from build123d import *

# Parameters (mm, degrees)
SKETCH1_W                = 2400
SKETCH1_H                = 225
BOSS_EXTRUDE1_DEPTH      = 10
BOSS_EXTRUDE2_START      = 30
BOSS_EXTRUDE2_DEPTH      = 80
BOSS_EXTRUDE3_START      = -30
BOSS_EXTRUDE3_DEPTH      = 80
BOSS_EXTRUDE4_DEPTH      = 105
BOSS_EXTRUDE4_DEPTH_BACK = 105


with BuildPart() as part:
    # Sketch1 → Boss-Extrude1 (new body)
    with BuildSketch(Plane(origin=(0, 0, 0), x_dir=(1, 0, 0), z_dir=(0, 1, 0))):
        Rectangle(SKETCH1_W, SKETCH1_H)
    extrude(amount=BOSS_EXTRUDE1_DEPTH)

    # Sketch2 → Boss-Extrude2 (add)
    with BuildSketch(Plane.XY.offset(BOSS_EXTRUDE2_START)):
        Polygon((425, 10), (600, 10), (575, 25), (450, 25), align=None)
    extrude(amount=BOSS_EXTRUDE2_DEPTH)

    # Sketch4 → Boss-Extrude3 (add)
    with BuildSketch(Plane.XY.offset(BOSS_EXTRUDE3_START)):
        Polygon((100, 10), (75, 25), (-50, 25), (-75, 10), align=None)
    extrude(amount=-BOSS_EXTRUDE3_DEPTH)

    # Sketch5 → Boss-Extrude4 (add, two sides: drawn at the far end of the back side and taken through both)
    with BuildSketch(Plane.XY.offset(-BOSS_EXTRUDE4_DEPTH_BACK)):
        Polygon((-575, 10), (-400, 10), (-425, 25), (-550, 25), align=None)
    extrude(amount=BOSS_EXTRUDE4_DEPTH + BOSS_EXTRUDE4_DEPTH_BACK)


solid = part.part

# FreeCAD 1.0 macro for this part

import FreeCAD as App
import Part
import Sketcher

V = App.Vector
Q = App.Units.Quantity


def add_polygon(sketch, points):
    """Adds a closed chain of lines whose ends are joined by coincident constraints."""
    first, n = sketch.GeometryCount, len(points)
    for a, b in zip(points, points[1:] + points[:1]):
        sketch.addGeometry(Part.LineSegment(App.Vector(*a, 0), App.Vector(*b, 0)), False)
    for i in range(n):
        sketch.addConstraint(Sketcher.Constraint("Coincident", first + i, 2, first + (i + 1) % n, 1))

doc = App.newDocument("Part")
body = doc.addObject("PartDesign::Body", "Body")

# Sketch on XZ plane
sketch1 = body.newObject("Sketcher::SketchObject", "Sketch")
sketch1.AttachmentSupport = (doc.getObject("XZ_Plane"), [""])
sketch1.MapMode = "FlatFace"
add_polygon(sketch1, [(-1200, -112), (-1200, 112), (1200, 112), (1200, -112)])  # lines 0-3
sketch1.addConstraint(Sketcher.Constraint("Vertical", 0))
sketch1.addConstraint(Sketcher.Constraint("Horizontal", 1))
sketch1.addConstraint(Sketcher.Constraint("Vertical", 2))
sketch1.addConstraint(Sketcher.Constraint("Horizontal", 3))
sketch1.addConstraint(Sketcher.Constraint("Symmetric", 0, 2, 2, 2, -1, 1))
sketch1.addConstraint(Sketcher.Constraint("DistanceX", 1, 1, 1, 2, Q("2400 mm")))
sketch1.addConstraint(Sketcher.Constraint("DistanceY", 0, 1, 0, 2, Q("225 mm")))
pad1 = body.newObject("PartDesign::Pad", "Pad")
pad1.Profile = sketch1
pad1.Length = 10
pad1.Reversed = True

# Sketch on XY plane
sketch2 = body.newObject("Sketcher::SketchObject", "Sketch001")
sketch2.AttachmentSupport = (doc.getObject("XY_Plane"), [""])
sketch2.MapMode = "FlatFace"
sketch2.AttachmentOffset = App.Placement(V(0, 0, 30), App.Rotation())
add_polygon(sketch2, [(425, 10), (600, 10), (575, 25), (450, 25)])  # lines 0-3
sketch2.addConstraint(Sketcher.Constraint("Horizontal", 0))
sketch2.addConstraint(Sketcher.Constraint("Horizontal", 2))
sketch2.addConstraint(Sketcher.Constraint("Equal", 1, 3))
sketch2.addConstraint(Sketcher.Constraint("DistanceX", 0, 1, 0, 2, Q("175 mm")))
sketch2.addConstraint(Sketcher.Constraint("DistanceX", 2, 2, 2, 1, Q("125 mm")))
sketch2.addConstraint(Sketcher.Constraint("DistanceX", -1, 1, 0, 2, Q("600 mm")))
sketch2.addConstraint(Sketcher.Constraint("DistanceY", -1, 1, 0, 2, Q("10 mm")))
sketch2.addConstraint(Sketcher.Constraint("DistanceY", -1, 1, 1, 2, Q("25 mm")))
pad2 = body.newObject("PartDesign::Pad", "Pad001")
pad2.Profile = sketch2
pad2.Length = 80

# Sketch on XY plane
sketch3 = body.newObject("Sketcher::SketchObject", "Sketch002")
sketch3.AttachmentSupport = (doc.getObject("XY_Plane"), [""])
sketch3.MapMode = "FlatFace"
sketch3.AttachmentOffset = App.Placement(V(0, 0, -30), App.Rotation())
add_polygon(sketch3, [(100, 10), (75, 25), (-50, 25), (-75, 10)])  # lines 0-3
sketch3.addConstraint(Sketcher.Constraint("Horizontal", 1))
sketch3.addConstraint(Sketcher.Constraint("Horizontal", 3))
sketch3.addConstraint(Sketcher.Constraint("Equal", 0, 2))
sketch3.addConstraint(Sketcher.Constraint("DistanceX", 1, 2, 1, 1, Q("125 mm")))
sketch3.addConstraint(Sketcher.Constraint("DistanceX", 3, 1, 3, 2, Q("175 mm")))
sketch3.addConstraint(Sketcher.Constraint("DistanceX", -1, 1, 0, 2, Q("75 mm")))
sketch3.addConstraint(Sketcher.Constraint("DistanceY", -1, 1, 0, 2, Q("25 mm")))
sketch3.addConstraint(Sketcher.Constraint("DistanceY", -1, 1, 2, 2, Q("10 mm")))
pad3 = body.newObject("PartDesign::Pad", "Pad002")
pad3.Profile = sketch3
pad3.Length = 80
pad3.Reversed = True

# Sketch on XY plane
sketch4 = body.newObject("Sketcher::SketchObject", "Sketch003")
sketch4.AttachmentSupport = (doc.getObject("XY_Plane"), [""])
sketch4.MapMode = "FlatFace"
add_polygon(sketch4, [(-575, 10), (-400, 10), (-425, 25), (-550, 25)])  # lines 0-3
sketch4.addConstraint(Sketcher.Constraint("Horizontal", 0))
sketch4.addConstraint(Sketcher.Constraint("Horizontal", 2))
sketch4.addConstraint(Sketcher.Constraint("Equal", 1, 3))
sketch4.addConstraint(Sketcher.Constraint("DistanceX", 0, 1, 0, 2, Q("175 mm")))
sketch4.addConstraint(Sketcher.Constraint("DistanceX", 2, 2, 2, 1, Q("125 mm")))
sketch4.addConstraint(Sketcher.Constraint("DistanceX", 0, 2, -1, 1, Q("400 mm")))
sketch4.addConstraint(Sketcher.Constraint("DistanceY", -1, 1, 0, 2, Q("10 mm")))
sketch4.addConstraint(Sketcher.Constraint("DistanceY", -1, 1, 1, 2, Q("25 mm")))
pad4 = body.newObject("PartDesign::Pad", "Pad003")
pad4.Profile = sketch4
pad4.Type = "TwoLengths"
pad4.Length = 105
pad4.Length2 = 105

doc.recompute()
